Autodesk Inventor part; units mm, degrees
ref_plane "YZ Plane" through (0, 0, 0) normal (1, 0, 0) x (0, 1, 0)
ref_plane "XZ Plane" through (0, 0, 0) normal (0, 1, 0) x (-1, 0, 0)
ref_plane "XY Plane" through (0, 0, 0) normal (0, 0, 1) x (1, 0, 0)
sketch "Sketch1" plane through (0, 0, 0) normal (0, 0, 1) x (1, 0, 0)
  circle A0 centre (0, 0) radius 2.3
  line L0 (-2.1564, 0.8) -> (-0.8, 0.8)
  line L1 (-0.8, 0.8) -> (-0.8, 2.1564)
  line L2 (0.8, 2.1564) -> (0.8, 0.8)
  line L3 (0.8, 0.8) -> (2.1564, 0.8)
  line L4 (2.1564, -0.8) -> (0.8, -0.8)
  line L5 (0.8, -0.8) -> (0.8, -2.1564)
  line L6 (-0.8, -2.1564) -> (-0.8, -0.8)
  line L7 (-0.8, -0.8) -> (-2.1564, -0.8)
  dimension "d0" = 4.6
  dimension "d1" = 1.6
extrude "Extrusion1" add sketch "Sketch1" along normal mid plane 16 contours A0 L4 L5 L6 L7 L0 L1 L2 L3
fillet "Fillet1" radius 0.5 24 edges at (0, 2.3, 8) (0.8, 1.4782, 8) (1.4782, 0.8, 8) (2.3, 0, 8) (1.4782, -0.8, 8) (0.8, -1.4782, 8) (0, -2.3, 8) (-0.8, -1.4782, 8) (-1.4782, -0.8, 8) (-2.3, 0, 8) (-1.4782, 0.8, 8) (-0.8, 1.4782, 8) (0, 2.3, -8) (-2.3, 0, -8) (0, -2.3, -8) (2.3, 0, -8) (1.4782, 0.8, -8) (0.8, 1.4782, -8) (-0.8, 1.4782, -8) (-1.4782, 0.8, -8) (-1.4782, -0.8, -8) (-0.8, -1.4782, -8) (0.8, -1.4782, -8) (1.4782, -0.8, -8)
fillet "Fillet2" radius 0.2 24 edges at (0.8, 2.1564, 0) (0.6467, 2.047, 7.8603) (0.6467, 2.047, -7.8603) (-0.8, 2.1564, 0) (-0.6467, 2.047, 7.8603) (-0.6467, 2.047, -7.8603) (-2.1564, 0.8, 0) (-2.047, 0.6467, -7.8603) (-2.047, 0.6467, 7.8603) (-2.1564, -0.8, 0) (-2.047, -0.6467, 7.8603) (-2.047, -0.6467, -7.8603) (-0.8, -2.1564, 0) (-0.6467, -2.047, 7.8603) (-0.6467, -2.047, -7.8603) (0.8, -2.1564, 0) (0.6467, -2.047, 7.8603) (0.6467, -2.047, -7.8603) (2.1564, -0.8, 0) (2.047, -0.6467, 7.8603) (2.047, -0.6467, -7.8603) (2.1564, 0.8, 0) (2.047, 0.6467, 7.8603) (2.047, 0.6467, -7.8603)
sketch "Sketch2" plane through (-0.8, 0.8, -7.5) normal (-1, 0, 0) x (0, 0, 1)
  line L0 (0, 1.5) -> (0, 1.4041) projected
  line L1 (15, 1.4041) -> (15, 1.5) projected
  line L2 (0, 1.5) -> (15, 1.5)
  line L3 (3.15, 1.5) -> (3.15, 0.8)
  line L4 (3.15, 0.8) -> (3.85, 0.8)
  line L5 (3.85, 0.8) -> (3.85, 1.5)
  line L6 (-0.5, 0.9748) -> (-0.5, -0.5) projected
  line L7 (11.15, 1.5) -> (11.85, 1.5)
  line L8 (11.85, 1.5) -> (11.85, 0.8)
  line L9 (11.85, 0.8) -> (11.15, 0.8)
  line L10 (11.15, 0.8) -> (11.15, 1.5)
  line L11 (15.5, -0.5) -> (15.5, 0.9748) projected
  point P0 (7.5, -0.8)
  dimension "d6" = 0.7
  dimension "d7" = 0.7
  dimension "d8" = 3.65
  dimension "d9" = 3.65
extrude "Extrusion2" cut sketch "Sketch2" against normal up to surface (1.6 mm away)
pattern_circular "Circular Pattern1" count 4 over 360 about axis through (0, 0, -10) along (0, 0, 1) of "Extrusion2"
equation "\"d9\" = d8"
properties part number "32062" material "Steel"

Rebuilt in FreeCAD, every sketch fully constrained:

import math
import FreeCAD as App
import Part
import Sketcher

V = App.Vector
Q = App.Units.Quantity


def edges_at(feature, points):
    """Names of the edges that pass closest to the given points."""
    edges = feature.Shape.Edges
    near = lambda p: min(range(len(edges)), key=lambda i: edges[i].distToShape(Part.Vertex(*p))[0])
    return sorted({f"Edge{near(p) + 1}" for p in points})


def add_polygon(sketch, points):
    """Adds a closed chain of lines whose ends are joined by coincident constraints."""
    first, n = sketch.GeometryCount, len(points)
    for a, b in zip(points, points[1:] + points[:1]):
        sketch.addGeometry(Part.LineSegment(App.Vector(*a, 0), App.Vector(*b, 0)), False)
    for i in range(n):
        sketch.addConstraint(Sketcher.Constraint("Coincident", first + i, 2, first + (i + 1) % n, 1))

doc = App.newDocument("Part")
body = doc.addObject("PartDesign::Body", "Body")

sketch1 = body.newObject("Sketcher::SketchObject", "Sketch")
sketch1.AttachmentSupport = (doc.getObject("XY_Plane"), [""])
sketch1.MapMode = "FlatFace"
sketch1.addGeometry([
    Part.ArcOfCircle(Part.Circle(V(0, 0, 0), V(0, 0, 1), 2.3), math.radians(-20), math.radians(20)),
    Part.LineSegment(V(2.2, 0.8, 0), V(0.8, 0.8, 0)),
    Part.LineSegment(V(0.8, 0.8, 0), V(0.8, 2.2, 0)),
    Part.ArcOfCircle(Part.Circle(V(0, 0, 0), V(0, 0, 1), 2.3), math.radians(70), math.radians(110)),
    Part.LineSegment(V(-0.8, 2.2, 0), V(-0.8, 0.8, 0)),
    Part.LineSegment(V(-0.8, 0.8, 0), V(-2.2, 0.8, 0)),
    Part.ArcOfCircle(Part.Circle(V(0, 0, 0), V(0, 0, 1), 2.3), math.radians(160), math.radians(200)),
    Part.LineSegment(V(-2.2, -0.8, 0), V(-0.8, -0.8, 0)),
    Part.LineSegment(V(-0.8, -0.8, 0), V(-0.8, -2.2, 0)),
    Part.ArcOfCircle(Part.Circle(V(0, 0, 0), V(0, 0, 1), 2.3), math.radians(-110), math.radians(-70)),
    Part.LineSegment(V(0.8, -2.2, 0), V(0.8, -0.8, 0)),
    Part.LineSegment(V(0.8, -0.8, 0), V(2.2, -0.8, 0)),
], False)
sketch1.addConstraint([
    Sketcher.Constraint("Coincident", 0, 2, 1, 1),
    Sketcher.Constraint("Coincident", 1, 2, 2, 1),
    Sketcher.Constraint("Coincident", 2, 2, 3, 1),
    Sketcher.Constraint("Coincident", 3, 2, 4, 1),
    Sketcher.Constraint("Coincident", 4, 2, 5, 1),
    Sketcher.Constraint("Coincident", 5, 2, 6, 1),
    Sketcher.Constraint("Coincident", 6, 2, 7, 1),
    Sketcher.Constraint("Coincident", 7, 2, 8, 1),
    Sketcher.Constraint("Coincident", 8, 2, 9, 1),
    Sketcher.Constraint("Coincident", 9, 2, 10, 1),
    Sketcher.Constraint("Coincident", 10, 2, 11, 1),
    Sketcher.Constraint("Coincident", 11, 2, 0, 1),
    Sketcher.Constraint("Horizontal", 1),
    Sketcher.Constraint("Vertical", 2),
    Sketcher.Constraint("Vertical", 4),
    Sketcher.Constraint("Horizontal", 5),
    Sketcher.Constraint("Horizontal", 7),
    Sketcher.Constraint("Vertical", 8),
    Sketcher.Constraint("Vertical", 10),
    Sketcher.Constraint("Horizontal", 11),
    Sketcher.Constraint("Coincident", 0, 3, -1, 1),
    Sketcher.Constraint("Coincident", 3, 3, -1, 1),
    Sketcher.Constraint("Coincident", 6, 3, -1, 1),
    Sketcher.Constraint("Coincident", 9, 3, -1, 1),
    Sketcher.Constraint("Equal", 0, 3),
    Sketcher.Constraint("Equal", 3, 6),
    Sketcher.Constraint("Equal", 6, 9),
    Sketcher.Constraint("Symmetric", 1, 2, 7, 2, -1, 1),
    Sketcher.Constraint("Symmetric", 4, 2, 10, 2, -1, 1),
    Sketcher.Constraint("Symmetric", 1, 2, 4, 2, -2),
    Sketcher.Constraint("Equal", 11, 2),
    Sketcher.Constraint("Radius", 0, Q("2.3 mm")),
    Sketcher.Constraint("DistanceX", 3, 2, 2, 2, Q("1.6 mm")),
])
pad1 = body.newObject("PartDesign::Pad", "Pad")
pad1.Profile = sketch1
pad1.Length = 16
pad1.Midplane = True
doc.recompute()

fillet = body.newObject("PartDesign::Fillet", "Fillet")
fillet.Base = (pad1, edges_at(pad1, [
    (0, 2.3, 8),
    (0.8, 1.478, 8),
    (1.478, 0.8, 8),
    (2.3, 0, 8),
    (1.478, -0.8, 8),
    (0.8, -1.478, 8),
    (0, -2.3, 8),
    (-0.8, -1.478, 8),
    (-1.478, -0.8, 8),
    (-2.3, 0, 8),
    (-1.478, 0.8, 8),
    (-0.8, 1.478, 8),
    (0, 2.3, -8),
    (-2.3, 0, -8),
    (0, -2.3, -8),
    (2.3, 0, -8),
    (1.478, 0.8, -8),
    (0.8, 1.478, -8),
    (-0.8, 1.478, -8),
    (-1.478, 0.8, -8),
    (-1.478, -0.8, -8),
    (-0.8, -1.478, -8),
    (0.8, -1.478, -8),
    (1.478, -0.8, -8),
]))
fillet.Radius = 0.5
doc.recompute()

fillet2 = body.newObject("PartDesign::Fillet", "Fillet001")
fillet2.Base = (fillet, edges_at(fillet, [
    (0.8, 2.156, 0),
    (0.647, 2.047, 7.86),
    (0.647, 2.047, -7.86),
    (-0.8, 2.156, 0),
    (-0.647, 2.047, 7.86),
    (-0.647, 2.047, -7.86),
    (-2.156, 0.8, 0),
    (-2.047, 0.647, -7.86),
    (-2.047, 0.647, 7.86),
    (-2.156, -0.8, 0),
    (-2.047, -0.647, 7.86),
    (-2.047, -0.647, -7.86),
    (-0.8, -2.156, 0),
    (-0.647, -2.047, 7.86),
    (-0.647, -2.047, -7.86),
    (0.8, -2.156, 0),
    (0.647, -2.047, 7.86),
    (0.647, -2.047, -7.86),
    (2.156, -0.8, 0),
    (2.047, -0.647, 7.86),
    (2.047, -0.647, -7.86),
    (2.156, 0.8, 0),
    (2.047, 0.647, 7.86),
    (2.047, 0.647, -7.86),
]))
fillet2.Radius = 0.2

sketch2 = body.newObject("Sketcher::SketchObject", "Sketch001")
sketch2.AttachmentSupport = (doc.getObject("YZ_Plane"), [""])
sketch2.MapMode = "FlatFace"
sketch2.AttachmentOffset = App.Placement(V(0, 0, -0.8), App.Rotation())
add_polygon(sketch2, [(2.3, 4.3), (2.3, 3.6), (1.6, 3.6), (1.6, 4.3)])
add_polygon(sketch2, [(2.3, -3.6), (2.3, -4.3), (1.6, -4.3), (1.6, -3.6)])
sketch2.addConstraint([
    Sketcher.Constraint("Vertical", 0),
    Sketcher.Constraint("Horizontal", 1),
    Sketcher.Constraint("Vertical", 2),
    Sketcher.Constraint("Horizontal", 3),
    Sketcher.Constraint("Vertical", 4),
    Sketcher.Constraint("Horizontal", 5),
    Sketcher.Constraint("Vertical", 6),
    Sketcher.Constraint("Horizontal", 7),
    Sketcher.Constraint("Symmetric", 3, 2, 4, 2, -1),
    Sketcher.Constraint("Symmetric", 1, 2, 6, 2, -1),
    Sketcher.Constraint("Equal", 7, 0),
    Sketcher.Constraint("DistanceX", 1, 2, 1, 1, Q("0.7 mm")),
    Sketcher.Constraint("DistanceY", -1, 1, 0, 2, Q("3.65 mm")),
    Sketcher.Constraint("DistanceX", -1, 1, 0, 2, Q("2.3 mm")),
])
pocket1 = body.newObject("PartDesign::Pocket", "Pocket")
pocket1.Profile = sketch2
pocket1.Length = 1.6
pocket1.Reversed = True
doc.recompute()

polarpattern = body.newObject("PartDesign::PolarPattern", "PolarPattern")
polarpattern.Originals = [pocket1]
polarpattern.Axis = (doc.getObject("Z_Axis"), [""])
polarpattern.Angle = 360
polarpattern.Occurrences = 4
body.Tip = polarpattern

doc.recompute()
